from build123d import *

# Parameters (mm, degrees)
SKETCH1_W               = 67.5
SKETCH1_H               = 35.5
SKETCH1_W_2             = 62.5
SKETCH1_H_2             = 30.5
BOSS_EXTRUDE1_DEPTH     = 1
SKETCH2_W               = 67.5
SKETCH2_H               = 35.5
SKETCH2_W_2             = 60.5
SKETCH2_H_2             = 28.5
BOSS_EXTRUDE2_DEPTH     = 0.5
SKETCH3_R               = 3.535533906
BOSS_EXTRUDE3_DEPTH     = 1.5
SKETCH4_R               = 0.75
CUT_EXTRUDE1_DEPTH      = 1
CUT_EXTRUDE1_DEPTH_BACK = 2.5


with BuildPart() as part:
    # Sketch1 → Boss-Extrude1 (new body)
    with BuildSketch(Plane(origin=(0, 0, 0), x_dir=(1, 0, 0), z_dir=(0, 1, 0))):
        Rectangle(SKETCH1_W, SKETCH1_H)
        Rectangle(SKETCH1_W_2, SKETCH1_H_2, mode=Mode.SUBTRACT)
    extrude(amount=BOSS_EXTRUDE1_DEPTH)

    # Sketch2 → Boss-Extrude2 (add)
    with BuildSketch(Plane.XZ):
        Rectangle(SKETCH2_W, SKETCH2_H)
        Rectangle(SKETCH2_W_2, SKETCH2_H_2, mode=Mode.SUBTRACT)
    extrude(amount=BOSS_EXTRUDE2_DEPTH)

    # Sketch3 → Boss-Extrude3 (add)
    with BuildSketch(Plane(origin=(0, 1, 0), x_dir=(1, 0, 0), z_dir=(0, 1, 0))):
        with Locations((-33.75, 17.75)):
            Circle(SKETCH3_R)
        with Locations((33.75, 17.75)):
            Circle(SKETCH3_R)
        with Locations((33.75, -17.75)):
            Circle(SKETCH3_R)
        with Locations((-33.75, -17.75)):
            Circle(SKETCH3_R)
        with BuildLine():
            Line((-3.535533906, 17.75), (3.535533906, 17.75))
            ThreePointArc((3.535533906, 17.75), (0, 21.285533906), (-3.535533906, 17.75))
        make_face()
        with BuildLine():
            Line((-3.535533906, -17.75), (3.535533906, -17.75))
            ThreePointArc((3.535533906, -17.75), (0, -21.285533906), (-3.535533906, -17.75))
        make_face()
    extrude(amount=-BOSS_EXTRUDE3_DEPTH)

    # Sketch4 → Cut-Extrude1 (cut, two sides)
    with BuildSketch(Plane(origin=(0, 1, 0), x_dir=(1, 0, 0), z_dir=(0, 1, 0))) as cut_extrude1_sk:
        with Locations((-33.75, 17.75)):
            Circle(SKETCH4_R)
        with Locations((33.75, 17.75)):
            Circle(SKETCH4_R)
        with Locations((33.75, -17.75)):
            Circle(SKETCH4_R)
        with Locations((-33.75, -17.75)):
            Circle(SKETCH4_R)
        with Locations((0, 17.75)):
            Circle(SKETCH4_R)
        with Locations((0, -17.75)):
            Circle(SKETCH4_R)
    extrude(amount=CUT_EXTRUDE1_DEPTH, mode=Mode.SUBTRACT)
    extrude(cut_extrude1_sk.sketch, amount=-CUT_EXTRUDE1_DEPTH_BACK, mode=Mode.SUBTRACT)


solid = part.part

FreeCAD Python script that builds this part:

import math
import FreeCAD as App
import Part
import Sketcher
from FreeCAD import Vector

doc = App.newDocument("Part")
params = doc.addObject("Spreadsheet::Sheet", "Params")
for row, (alias, value) in enumerate([
    ("sketch1_width", "67.5 mm"),
    ("sketch1_width2", "62.5 mm"),
    ("sketch1_height", "35.5 mm"),
    ("sketch1_height2", "30.5 mm"),
    ("pad1_length", "1 mm"),
    ("sketch2_width", "67.5 mm"),
    ("sketch2_width2", "60.5 mm"),
    ("sketch2_height", "35.5 mm"),
    ("sketch2_height2", "28.5 mm"),
    ("pad2_length", "0.5 mm"),
    ("pad3_length", "1.5 mm"),
    ("sketch4_diameter", "1.5 mm"),
], start=1):
    params.set(f"A{row}", alias)
    params.set(f"B{row}", "=" + value)
    params.setAlias(f"B{row}", alias)

body = doc.addObject("PartDesign::Body", "Body")

sketch1 = doc.addObject("Sketcher::SketchObject", "Sketch")
body.addObject(sketch1)
sketch1.AttachmentSupport = (doc.XZ_Plane, [""])
sketch1.MapMode = "FlatFace"
sketch1.addGeometry(Part.LineSegment(Vector(-34, -18, 0), Vector(-34, 18, 0)), False)
sketch1.addGeometry(Part.LineSegment(Vector(-34, 18, 0), Vector(34, 18, 0)), False)
sketch1.addGeometry(Part.LineSegment(Vector(34, 18, 0), Vector(34, -18, 0)), False)
sketch1.addGeometry(Part.LineSegment(Vector(34, -18, 0), Vector(-34, -18, 0)), False)
sketch1.addGeometry(Part.LineSegment(Vector(31, 15, 0), Vector(-31, 15, 0)), False)
sketch1.addGeometry(Part.LineSegment(Vector(-31, 15, 0), Vector(-31, -15, 0)), False)
sketch1.addGeometry(Part.LineSegment(Vector(-31, -15, 0), Vector(31, -15, 0)), False)
sketch1.addGeometry(Part.LineSegment(Vector(31, -15, 0), Vector(31, 15, 0)), False)
sketch1.addConstraint(Sketcher.Constraint("Coincident", 0, 2, 1, 1))
sketch1.addConstraint(Sketcher.Constraint("Coincident", 1, 2, 2, 1))
sketch1.addConstraint(Sketcher.Constraint("Coincident", 2, 2, 3, 1))
sketch1.addConstraint(Sketcher.Constraint("Coincident", 3, 2, 0, 1))
sketch1.addConstraint(Sketcher.Constraint("Coincident", 4, 2, 5, 1))
sketch1.addConstraint(Sketcher.Constraint("Coincident", 5, 2, 6, 1))
sketch1.addConstraint(Sketcher.Constraint("Coincident", 6, 2, 7, 1))
sketch1.addConstraint(Sketcher.Constraint("Coincident", 7, 2, 4, 1))
sketch1.addConstraint(Sketcher.Constraint("Vertical", 0))
sketch1.addConstraint(Sketcher.Constraint("Horizontal", 1))
sketch1.addConstraint(Sketcher.Constraint("Vertical", 2))
sketch1.addConstraint(Sketcher.Constraint("Horizontal", 3))
sketch1.addConstraint(Sketcher.Constraint("Horizontal", 4))
sketch1.addConstraint(Sketcher.Constraint("Vertical", 5))
sketch1.addConstraint(Sketcher.Constraint("Horizontal", 6))
sketch1.addConstraint(Sketcher.Constraint("Vertical", 7))
sketch1.addConstraint(Sketcher.Constraint("Symmetric", 0, 2, 2, 2, -1, 1))
sketch1.addConstraint(Sketcher.Constraint("Symmetric", 4, 2, 6, 2, -1, 1))
sketch1.addConstraint(Sketcher.Constraint("DistanceX", 1, 1, 1, 2, 67.5))
sketch1.addConstraint(Sketcher.Constraint("DistanceX", 4, 2, 4, 1, 62.5))
sketch1.addConstraint(Sketcher.Constraint("DistanceY", 0, 1, 0, 2, 35.5))
sketch1.addConstraint(Sketcher.Constraint("DistanceY", 5, 2, 5, 1, 30.5))
sketch1.setExpression("Constraints[18]", "Params.sketch1_width")
sketch1.setExpression("Constraints[19]", "Params.sketch1_width2")
sketch1.setExpression("Constraints[20]", "Params.sketch1_height")
sketch1.setExpression("Constraints[21]", "Params.sketch1_height2")
pad1 = doc.addObject("PartDesign::Pad", "Pad")
body.addObject(pad1)
pad1.Profile = sketch1
pad1.setExpression("Length", "Params.pad1_length")
pad1.Reversed = True

sketch2 = doc.addObject("Sketcher::SketchObject", "Sketch001")
body.addObject(sketch2)
sketch2.AttachmentSupport = (doc.XZ_Plane, [""])
sketch2.MapMode = "FlatFace"
sketch2.addGeometry(Part.LineSegment(Vector(-34, 18, 0), Vector(-34, -18, 0)), False)
sketch2.addGeometry(Part.LineSegment(Vector(-34, -18, 0), Vector(34, -18, 0)), False)
sketch2.addGeometry(Part.LineSegment(Vector(34, -18, 0), Vector(34, 18, 0)), False)
sketch2.addGeometry(Part.LineSegment(Vector(34, 18, 0), Vector(-34, 18, 0)), False)
sketch2.addGeometry(Part.LineSegment(Vector(30, -14, 0), Vector(-30, -14, 0)), False)
sketch2.addGeometry(Part.LineSegment(Vector(-30, -14, 0), Vector(-30, 14, 0)), False)
sketch2.addGeometry(Part.LineSegment(Vector(-30, 14, 0), Vector(30, 14, 0)), False)
sketch2.addGeometry(Part.LineSegment(Vector(30, 14, 0), Vector(30, -14, 0)), False)
sketch2.addConstraint(Sketcher.Constraint("Coincident", 0, 2, 1, 1))
sketch2.addConstraint(Sketcher.Constraint("Coincident", 1, 2, 2, 1))
sketch2.addConstraint(Sketcher.Constraint("Coincident", 2, 2, 3, 1))
sketch2.addConstraint(Sketcher.Constraint("Coincident", 3, 2, 0, 1))
sketch2.addConstraint(Sketcher.Constraint("Coincident", 4, 2, 5, 1))
sketch2.addConstraint(Sketcher.Constraint("Coincident", 5, 2, 6, 1))
sketch2.addConstraint(Sketcher.Constraint("Coincident", 6, 2, 7, 1))
sketch2.addConstraint(Sketcher.Constraint("Coincident", 7, 2, 4, 1))
sketch2.addConstraint(Sketcher.Constraint("Vertical", 0))
sketch2.addConstraint(Sketcher.Constraint("Horizontal", 1))
sketch2.addConstraint(Sketcher.Constraint("Vertical", 2))
sketch2.addConstraint(Sketcher.Constraint("Horizontal", 3))
sketch2.addConstraint(Sketcher.Constraint("Horizontal", 4))
sketch2.addConstraint(Sketcher.Constraint("Vertical", 5))
sketch2.addConstraint(Sketcher.Constraint("Horizontal", 6))
sketch2.addConstraint(Sketcher.Constraint("Vertical", 7))
sketch2.addConstraint(Sketcher.Constraint("Symmetric", 0, 2, 2, 2, -1, 1))
sketch2.addConstraint(Sketcher.Constraint("Symmetric", 4, 2, 6, 2, -1, 1))
sketch2.addConstraint(Sketcher.Constraint("DistanceX", 1, 1, 1, 2, 67.5))
sketch2.addConstraint(Sketcher.Constraint("DistanceX", 4, 2, 4, 1, 60.5))
sketch2.addConstraint(Sketcher.Constraint("DistanceY", 0, 2, 0, 1, 35.5))
sketch2.addConstraint(Sketcher.Constraint("DistanceY", 5, 1, 5, 2, 28.5))
sketch2.setExpression("Constraints[18]", "Params.sketch2_width")
sketch2.setExpression("Constraints[19]", "Params.sketch2_width2")
sketch2.setExpression("Constraints[20]", "Params.sketch2_height")
sketch2.setExpression("Constraints[21]", "Params.sketch2_height2")
pad2 = doc.addObject("PartDesign::Pad", "Pad001")
body.addObject(pad2)
pad2.Profile = sketch2
pad2.setExpression("Length", "Params.pad2_length")

sketch3 = doc.addObject("Sketcher::SketchObject", "Sketch002")
body.addObject(sketch3)
sketch3.AttachmentSupport = (doc.XZ_Plane, [""])
sketch3.MapMode = "FlatFace"
sketch3.AttachmentOffset = App.Placement(Vector(0, 0, -1), App.Rotation())
sketch3.addGeometry(Part.Circle(Vector(-33.8, -17.8, 0), Vector(0, 0, 1), 3.5), False)
sketch3.addGeometry(Part.Circle(Vector(33.8, -17.8, 0), Vector(0, 0, 1), 3.5), False)
sketch3.addGeometry(Part.Circle(Vector(33.8, 17.8, 0), Vector(0, 0, 1), 3.5), False)
sketch3.addGeometry(Part.Circle(Vector(-33.8, 17.8, 0), Vector(0, 0, 1), 3.5), False)
sketch3.addGeometry(Part.LineSegment(Vector(-3.5, -17.8, 0), Vector(3.5, -17.8, 0)), False)
sketch3.addGeometry(Part.ArcOfCircle(Part.Circle(Vector(0, -17.8, 0), Vector(0, 0, 1), 3.5), math.radians(180), math.radians(360)), False)
sketch3.addGeometry(Part.LineSegment(Vector(3.5, 17.8, 0), Vector(-3.5, 17.8, 0)), False)
sketch3.addGeometry(Part.ArcOfCircle(Part.Circle(Vector(0, 17.8, 0), Vector(0, 0, 1), 3.5), math.radians(0), math.radians(180)), False)
sketch3.addConstraint(Sketcher.Constraint("Coincident", 4, 1, 5, 1))
sketch3.addConstraint(Sketcher.Constraint("Coincident", 5, 2, 4, 2))
sketch3.addConstraint(Sketcher.Constraint("Coincident", 6, 1, 7, 1))
sketch3.addConstraint(Sketcher.Constraint("Coincident", 7, 2, 6, 2))
sketch3.addConstraint(Sketcher.Constraint("Horizontal", 4))
sketch3.addConstraint(Sketcher.Constraint("Horizontal", 6))
sketch3.addConstraint(Sketcher.Constraint("Equal", 0, 1))
sketch3.addConstraint(Sketcher.Constraint("Equal", 1, 2))
sketch3.addConstraint(Sketcher.Constraint("Equal", 2, 3))
sketch3.addConstraint(Sketcher.Constraint("Equal", 3, 5))
sketch3.addConstraint(Sketcher.Constraint("Equal", 5, 7))
sketch3.addConstraint(Sketcher.Constraint("Symmetric", 0, 3, 2, 3, -1, 1))
sketch3.addConstraint(Sketcher.Constraint("Symmetric", 1, 3, 3, 3, -1, 1))
sketch3.addConstraint(Sketcher.Constraint("Symmetric", 5, 3, 7, 3, -1, 1))
sketch3.addConstraint(Sketcher.Constraint("Symmetric", 0, 3, 1, 3, -2))
sketch3.addConstraint(Sketcher.Constraint("Symmetric", 5, 2, 6, 1, -1))
sketch3.addConstraint(Sketcher.Constraint("Horizontal", 1, 3, 5, 3))
sketch3.addConstraint(Sketcher.Constraint("Horizontal", 5, 3, 4, 1))
sketch3.addConstraint(Sketcher.Constraint("DistanceX", 0, 3, 1, 3, 67.5))
sketch3.addConstraint(Sketcher.Constraint("DistanceY", 1, 3, 2, 3, 35.5))
sketch3.addConstraint(Sketcher.Constraint("Diameter", 0, 7.071068))
pad3 = doc.addObject("PartDesign::Pad", "Pad002")
body.addObject(pad3)
pad3.Profile = sketch3
pad3.setExpression("Length", "Params.pad3_length")

sketch4 = doc.addObject("Sketcher::SketchObject", "Sketch003")
body.addObject(sketch4)
sketch4.AttachmentSupport = (doc.XZ_Plane, [""])
sketch4.MapMode = "FlatFace"
sketch4.AttachmentOffset = App.Placement(Vector(0, 0, -1), App.Rotation())
sketch4.addGeometry(Part.Circle(Vector(-33.8, -17.8, 0), Vector(0, 0, 1), 0.8), False)
sketch4.addGeometry(Part.Circle(Vector(33.8, -17.8, 0), Vector(0, 0, 1), 0.8), False)
sketch4.addGeometry(Part.Circle(Vector(33.8, 17.8, 0), Vector(0, 0, 1), 0.8), False)
sketch4.addGeometry(Part.Circle(Vector(-33.8, 17.8, 0), Vector(0, 0, 1), 0.8), False)
sketch4.addGeometry(Part.Circle(Vector(0, -17.8, 0), Vector(0, 0, 1), 0.8), False)
sketch4.addGeometry(Part.Circle(Vector(0, 17.8, 0), Vector(0, 0, 1), 0.8), False)
sketch4.addConstraint(Sketcher.Constraint("Equal", 0, 1))
sketch4.addConstraint(Sketcher.Constraint("Equal", 1, 2))
sketch4.addConstraint(Sketcher.Constraint("Equal", 2, 3))
sketch4.addConstraint(Sketcher.Constraint("Equal", 3, 4))
sketch4.addConstraint(Sketcher.Constraint("Equal", 4, 5))
sketch4.addConstraint(Sketcher.Constraint("Symmetric", 0, 3, 2, 3, -1, 1))
sketch4.addConstraint(Sketcher.Constraint("Symmetric", 1, 3, 3, 3, -1, 1))
sketch4.addConstraint(Sketcher.Constraint("Symmetric", 4, 3, 5, 3, -1, 1))
sketch4.addConstraint(Sketcher.Constraint("Symmetric", 0, 3, 1, 3, -2))
sketch4.addConstraint(Sketcher.Constraint("PointOnObject", 4, 3, -2))
sketch4.addConstraint(Sketcher.Constraint("Horizontal", 1, 3, 4, 3))
sketch4.addConstraint(Sketcher.Constraint("Diameter", 0, 1.5))
sketch4.addConstraint(Sketcher.Constraint("DistanceX", 0, 3, 1, 3, 67.5))
sketch4.addConstraint(Sketcher.Constraint("DistanceY", 1, 3, 2, 3, 35.5))
sketch4.setExpression("Constraints[11]", "Params.sketch4_diameter")
pocket1 = doc.addObject("PartDesign::Pocket", "Pocket")
body.addObject(pocket1)
pocket1.Profile = sketch4
pocket1.Type = "ThroughAll"
pocket1.Midplane = True

doc.recompute()
